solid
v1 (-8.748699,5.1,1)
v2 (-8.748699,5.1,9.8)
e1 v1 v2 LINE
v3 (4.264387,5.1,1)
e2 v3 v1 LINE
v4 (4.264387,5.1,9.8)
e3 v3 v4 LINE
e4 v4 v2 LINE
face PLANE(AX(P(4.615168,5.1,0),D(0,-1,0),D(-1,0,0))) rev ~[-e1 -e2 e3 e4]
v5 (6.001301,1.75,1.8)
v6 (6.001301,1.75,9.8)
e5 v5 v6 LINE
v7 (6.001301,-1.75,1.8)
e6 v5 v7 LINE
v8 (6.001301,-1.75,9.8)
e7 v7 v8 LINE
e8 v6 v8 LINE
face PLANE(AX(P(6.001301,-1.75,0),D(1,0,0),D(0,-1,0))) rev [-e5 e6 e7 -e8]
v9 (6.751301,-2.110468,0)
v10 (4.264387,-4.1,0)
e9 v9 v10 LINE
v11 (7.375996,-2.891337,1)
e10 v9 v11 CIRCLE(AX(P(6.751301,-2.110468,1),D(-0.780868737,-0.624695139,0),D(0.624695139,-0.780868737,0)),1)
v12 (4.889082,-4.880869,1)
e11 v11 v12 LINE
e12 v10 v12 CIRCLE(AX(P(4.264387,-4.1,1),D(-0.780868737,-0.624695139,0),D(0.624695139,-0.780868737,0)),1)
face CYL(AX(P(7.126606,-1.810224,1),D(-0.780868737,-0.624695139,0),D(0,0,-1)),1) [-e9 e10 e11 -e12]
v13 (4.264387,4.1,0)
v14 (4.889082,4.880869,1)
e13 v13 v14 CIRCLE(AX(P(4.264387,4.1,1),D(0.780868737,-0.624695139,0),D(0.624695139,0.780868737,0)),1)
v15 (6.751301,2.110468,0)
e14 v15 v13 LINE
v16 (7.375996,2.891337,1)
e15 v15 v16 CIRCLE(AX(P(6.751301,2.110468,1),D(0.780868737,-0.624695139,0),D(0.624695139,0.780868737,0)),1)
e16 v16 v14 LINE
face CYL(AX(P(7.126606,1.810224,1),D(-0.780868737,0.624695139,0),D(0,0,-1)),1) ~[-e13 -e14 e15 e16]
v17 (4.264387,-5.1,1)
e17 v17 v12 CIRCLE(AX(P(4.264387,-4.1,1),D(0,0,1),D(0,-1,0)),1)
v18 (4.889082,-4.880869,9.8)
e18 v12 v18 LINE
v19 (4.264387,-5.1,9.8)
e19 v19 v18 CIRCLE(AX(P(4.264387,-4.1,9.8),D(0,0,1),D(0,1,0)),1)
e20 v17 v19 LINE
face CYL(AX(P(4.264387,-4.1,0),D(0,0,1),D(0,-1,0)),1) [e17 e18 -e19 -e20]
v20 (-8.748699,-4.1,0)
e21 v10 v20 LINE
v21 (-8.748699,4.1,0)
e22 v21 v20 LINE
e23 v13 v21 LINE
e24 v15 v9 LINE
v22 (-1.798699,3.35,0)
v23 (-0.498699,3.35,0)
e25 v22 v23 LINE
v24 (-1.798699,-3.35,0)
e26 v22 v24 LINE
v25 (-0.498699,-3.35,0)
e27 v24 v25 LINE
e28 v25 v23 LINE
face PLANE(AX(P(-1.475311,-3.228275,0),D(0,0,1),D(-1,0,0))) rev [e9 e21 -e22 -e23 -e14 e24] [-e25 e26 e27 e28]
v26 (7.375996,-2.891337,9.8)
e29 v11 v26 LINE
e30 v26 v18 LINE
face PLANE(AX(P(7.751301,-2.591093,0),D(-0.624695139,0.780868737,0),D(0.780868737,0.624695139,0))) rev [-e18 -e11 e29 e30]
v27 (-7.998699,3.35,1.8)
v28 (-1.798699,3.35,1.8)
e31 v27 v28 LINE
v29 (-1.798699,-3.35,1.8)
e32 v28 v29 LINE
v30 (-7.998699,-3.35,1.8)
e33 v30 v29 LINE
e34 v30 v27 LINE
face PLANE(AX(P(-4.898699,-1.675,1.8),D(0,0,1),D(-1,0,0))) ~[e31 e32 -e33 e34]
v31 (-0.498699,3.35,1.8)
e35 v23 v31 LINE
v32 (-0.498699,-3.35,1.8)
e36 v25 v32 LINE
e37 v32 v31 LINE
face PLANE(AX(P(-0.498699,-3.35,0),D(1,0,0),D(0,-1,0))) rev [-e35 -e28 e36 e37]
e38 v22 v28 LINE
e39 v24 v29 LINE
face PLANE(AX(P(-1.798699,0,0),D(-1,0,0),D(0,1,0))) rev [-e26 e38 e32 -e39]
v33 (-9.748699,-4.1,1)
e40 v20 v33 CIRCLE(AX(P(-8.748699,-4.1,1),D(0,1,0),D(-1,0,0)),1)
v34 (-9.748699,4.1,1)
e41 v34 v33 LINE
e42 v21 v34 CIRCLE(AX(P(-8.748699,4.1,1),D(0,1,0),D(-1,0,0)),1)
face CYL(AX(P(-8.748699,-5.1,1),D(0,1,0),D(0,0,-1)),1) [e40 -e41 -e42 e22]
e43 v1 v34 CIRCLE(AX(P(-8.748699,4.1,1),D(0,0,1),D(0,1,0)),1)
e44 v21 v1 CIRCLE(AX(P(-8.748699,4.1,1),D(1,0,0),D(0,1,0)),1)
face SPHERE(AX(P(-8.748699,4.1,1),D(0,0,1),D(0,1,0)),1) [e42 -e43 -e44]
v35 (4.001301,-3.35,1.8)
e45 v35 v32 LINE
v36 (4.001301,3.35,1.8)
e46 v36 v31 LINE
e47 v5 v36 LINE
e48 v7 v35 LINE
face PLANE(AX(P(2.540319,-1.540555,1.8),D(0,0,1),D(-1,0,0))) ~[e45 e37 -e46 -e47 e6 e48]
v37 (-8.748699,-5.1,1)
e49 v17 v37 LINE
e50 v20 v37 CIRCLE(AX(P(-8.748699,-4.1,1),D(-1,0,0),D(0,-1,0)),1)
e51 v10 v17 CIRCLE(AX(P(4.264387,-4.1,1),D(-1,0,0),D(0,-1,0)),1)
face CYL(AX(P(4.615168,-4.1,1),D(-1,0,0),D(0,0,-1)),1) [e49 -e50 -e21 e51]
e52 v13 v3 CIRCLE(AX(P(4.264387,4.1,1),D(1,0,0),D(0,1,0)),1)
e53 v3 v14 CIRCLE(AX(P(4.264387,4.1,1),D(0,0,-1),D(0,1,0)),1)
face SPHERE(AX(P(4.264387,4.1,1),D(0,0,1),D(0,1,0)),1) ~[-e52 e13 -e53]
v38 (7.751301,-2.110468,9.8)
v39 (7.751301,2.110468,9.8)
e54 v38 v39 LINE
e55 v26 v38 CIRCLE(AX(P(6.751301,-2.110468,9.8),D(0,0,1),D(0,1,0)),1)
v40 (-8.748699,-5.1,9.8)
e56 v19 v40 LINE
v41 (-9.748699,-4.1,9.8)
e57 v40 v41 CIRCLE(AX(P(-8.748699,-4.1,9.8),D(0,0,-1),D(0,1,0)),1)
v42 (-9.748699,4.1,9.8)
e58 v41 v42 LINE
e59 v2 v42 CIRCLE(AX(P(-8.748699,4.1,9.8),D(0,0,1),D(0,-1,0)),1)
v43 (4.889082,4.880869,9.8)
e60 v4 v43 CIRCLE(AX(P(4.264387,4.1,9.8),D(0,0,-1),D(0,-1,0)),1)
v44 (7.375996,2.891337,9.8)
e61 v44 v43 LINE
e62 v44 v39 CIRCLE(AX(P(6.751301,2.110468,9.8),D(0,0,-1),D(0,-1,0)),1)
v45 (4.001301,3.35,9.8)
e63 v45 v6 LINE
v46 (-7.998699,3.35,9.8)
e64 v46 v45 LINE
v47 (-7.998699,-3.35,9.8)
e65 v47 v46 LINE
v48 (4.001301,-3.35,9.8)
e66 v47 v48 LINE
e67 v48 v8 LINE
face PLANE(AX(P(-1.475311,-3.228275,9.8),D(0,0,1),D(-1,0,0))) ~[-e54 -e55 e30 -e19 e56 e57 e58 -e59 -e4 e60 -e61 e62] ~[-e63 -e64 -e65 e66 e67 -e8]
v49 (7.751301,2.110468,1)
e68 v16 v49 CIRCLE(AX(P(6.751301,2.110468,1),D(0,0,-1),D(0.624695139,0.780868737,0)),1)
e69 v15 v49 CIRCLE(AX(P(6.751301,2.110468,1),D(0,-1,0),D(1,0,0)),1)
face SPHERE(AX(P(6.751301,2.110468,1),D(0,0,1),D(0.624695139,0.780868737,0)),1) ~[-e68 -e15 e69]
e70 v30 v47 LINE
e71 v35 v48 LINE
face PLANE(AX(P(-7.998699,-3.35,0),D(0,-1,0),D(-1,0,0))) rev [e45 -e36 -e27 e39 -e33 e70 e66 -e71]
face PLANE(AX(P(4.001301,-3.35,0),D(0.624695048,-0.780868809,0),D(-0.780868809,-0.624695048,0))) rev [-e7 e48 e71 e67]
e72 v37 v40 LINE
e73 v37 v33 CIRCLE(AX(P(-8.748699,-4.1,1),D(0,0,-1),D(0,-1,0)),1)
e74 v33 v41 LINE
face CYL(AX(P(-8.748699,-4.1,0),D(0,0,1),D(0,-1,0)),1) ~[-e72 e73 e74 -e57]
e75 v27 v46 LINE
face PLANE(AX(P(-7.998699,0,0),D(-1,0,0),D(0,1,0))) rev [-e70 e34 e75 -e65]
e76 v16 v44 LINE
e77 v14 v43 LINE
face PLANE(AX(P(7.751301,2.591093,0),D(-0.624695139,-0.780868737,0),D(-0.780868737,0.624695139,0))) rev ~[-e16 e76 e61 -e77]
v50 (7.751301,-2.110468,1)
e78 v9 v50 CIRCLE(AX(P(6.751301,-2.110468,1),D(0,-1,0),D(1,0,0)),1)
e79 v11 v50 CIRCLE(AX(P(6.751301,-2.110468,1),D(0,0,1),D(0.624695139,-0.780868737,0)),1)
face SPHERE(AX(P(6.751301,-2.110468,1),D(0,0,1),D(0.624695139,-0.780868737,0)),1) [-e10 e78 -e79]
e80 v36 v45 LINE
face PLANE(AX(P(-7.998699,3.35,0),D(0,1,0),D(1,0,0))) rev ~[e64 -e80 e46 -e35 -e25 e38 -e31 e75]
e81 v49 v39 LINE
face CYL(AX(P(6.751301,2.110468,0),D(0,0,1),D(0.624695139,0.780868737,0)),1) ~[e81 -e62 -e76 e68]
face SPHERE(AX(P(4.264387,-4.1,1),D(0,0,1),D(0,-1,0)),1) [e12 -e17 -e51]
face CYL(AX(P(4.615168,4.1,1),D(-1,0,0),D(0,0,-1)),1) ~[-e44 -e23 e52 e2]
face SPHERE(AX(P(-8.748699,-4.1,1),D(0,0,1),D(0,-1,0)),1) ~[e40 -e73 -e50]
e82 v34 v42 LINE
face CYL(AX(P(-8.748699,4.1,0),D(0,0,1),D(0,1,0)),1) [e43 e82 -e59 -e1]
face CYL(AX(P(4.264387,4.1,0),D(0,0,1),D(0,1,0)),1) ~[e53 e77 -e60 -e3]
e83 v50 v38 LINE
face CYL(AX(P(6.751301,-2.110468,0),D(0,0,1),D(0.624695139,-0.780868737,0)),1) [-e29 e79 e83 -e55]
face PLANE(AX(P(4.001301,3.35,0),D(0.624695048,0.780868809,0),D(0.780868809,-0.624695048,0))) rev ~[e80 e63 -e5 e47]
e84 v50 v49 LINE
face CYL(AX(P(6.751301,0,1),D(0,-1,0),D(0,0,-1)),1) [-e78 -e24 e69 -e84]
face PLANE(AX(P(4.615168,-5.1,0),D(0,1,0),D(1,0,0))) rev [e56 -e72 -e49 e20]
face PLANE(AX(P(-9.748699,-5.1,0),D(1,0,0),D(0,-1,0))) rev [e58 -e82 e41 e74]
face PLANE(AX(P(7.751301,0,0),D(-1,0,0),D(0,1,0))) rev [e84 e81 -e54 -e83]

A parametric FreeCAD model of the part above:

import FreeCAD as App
import Part
import Sketcher


def edges_at(feature, points):
    """Names of the edges that pass closest to the given points."""
    edges = feature.Shape.Edges
    near = lambda p: min(range(len(edges)), key=lambda i: edges[i].distToShape(Part.Vertex(*p))[0])
    return sorted({f"Edge{near(p) + 1}" for p in points})

doc = App.newDocument("Part")
body = doc.addObject("PartDesign::Body", "Body")
body.AllowCompound = True

sketch1 = body.newObject("Sketcher::SketchObject", "Sketch")
sketch1.AttachmentSupport = (doc.getObject("XY_Plane"), [""])
sketch1.MapMode = "FlatFace"
sketch1.addGeometry([
    Part.LineSegment(App.Vector(-8, 3.4, 0), App.Vector(-8, 0, 0)),
    Part.LineSegment(App.Vector(-8, 0, 0), App.Vector(-1.8, 0, 0)),
    Part.LineSegment(App.Vector(-1.8, 0, 0), App.Vector(-1.8, 3.4, 0)),
    Part.LineSegment(App.Vector(-1.8, 3.4, 0), App.Vector(-8, 3.4, 0)),
    Part.LineSegment(App.Vector(-0.5, 3.4, 0), App.Vector(-0.5, 0, 0)),
    Part.LineSegment(App.Vector(-0.5, 0, 0), App.Vector(6, 0, 0)),
    Part.LineSegment(App.Vector(6, 0, 0), App.Vector(6, 1.8, 0)),
    Part.LineSegment(App.Vector(6, 1.8, 0), App.Vector(4, 3.4, 0)),
    Part.LineSegment(App.Vector(4, 3.4, 0), App.Vector(-0.5, 3.4, 0)),
], False)
sketch1.addConstraint([
    Sketcher.Constraint("Coincident", 0, 2, 1, 1),
    Sketcher.Constraint("Coincident", 1, 2, 2, 1),
    Sketcher.Constraint("Coincident", 2, 2, 3, 1),
    Sketcher.Constraint("Coincident", 3, 2, 0, 1),
    Sketcher.Constraint("Coincident", 4, 2, 5, 1),
    Sketcher.Constraint("Coincident", 5, 2, 6, 1),
    Sketcher.Constraint("Coincident", 6, 2, 7, 1),
    Sketcher.Constraint("Coincident", 7, 2, 8, 1),
    Sketcher.Constraint("Coincident", 8, 2, 4, 1),
    Sketcher.Constraint("Vertical", 0),
    Sketcher.Constraint("Horizontal", 1),
    Sketcher.Constraint("Vertical", 2),
    Sketcher.Constraint("Horizontal", 3),
    Sketcher.Constraint("Vertical", 4),
    Sketcher.Constraint("Horizontal", 5),
    Sketcher.Constraint("Vertical", 6),
    Sketcher.Constraint("Horizontal", 8),
    Sketcher.Constraint("PointOnObject", 0, 2, -1),
    Sketcher.Constraint("PointOnObject", 4, 2, -1),
    Sketcher.Constraint("Horizontal", 3, 2, 7, 2),
    Sketcher.Constraint("DistanceX", 1, 1, 1, 2, 6.2),
    Sketcher.Constraint("DistanceX", 5, 1, 5, 2, 6.5),
    Sketcher.Constraint("DistanceX", 8, 2, 8, 1, 4.5),
    Sketcher.Constraint("DistanceX", 0, 2, 5, 2, 14.0),
    Sketcher.Constraint("DistanceY", 0, 2, 0, 1, 3.35),
    Sketcher.Constraint("DistanceY", 6, 1, 6, 2, 1.75),
    Sketcher.Constraint("DistanceX", 0, 2, -1, 1, 7.998699),
])
pad1 = body.newObject("PartDesign::Pad", "Pad")
pad1.Profile = sketch1
pad1.Length = 1.8

sketch2 = body.newObject("Sketcher::SketchObject", "Sketch001")
sketch2.AttachmentSupport = (doc.getObject("XY_Plane"), [""])
sketch2.MapMode = "FlatFace"
sketch2.addGeometry([
    Part.LineSegment(App.Vector(-9.7, 0, 0), App.Vector(-8, 0, 0)),
    Part.LineSegment(App.Vector(-8, 0, 0), App.Vector(-8, 3.4, 0)),
    Part.LineSegment(App.Vector(-8, 3.4, 0), App.Vector(4, 3.4, 0)),
    Part.LineSegment(App.Vector(4, 3.4, 0), App.Vector(6, 1.8, 0)),
    Part.LineSegment(App.Vector(6, 1.8, 0), App.Vector(6, 0, 0)),
    Part.LineSegment(App.Vector(6, 0, 0), App.Vector(7.8, 0, 0)),
    Part.LineSegment(App.Vector(7.8, 0, 0), App.Vector(7.8, 2.6, 0)),
    Part.LineSegment(App.Vector(7.8, 2.6, 0), App.Vector(4.6, 5.1, 0)),
    Part.LineSegment(App.Vector(4.6, 5.1, 0), App.Vector(-9.7, 5.1, 0)),
    Part.LineSegment(App.Vector(-9.7, 5.1, 0), App.Vector(-9.7, 0, 0)),
], False)
sketch2.addConstraint([
    Sketcher.Constraint("Coincident", 0, 2, 1, 1),
    Sketcher.Constraint("Coincident", 1, 2, 2, 1),
    Sketcher.Constraint("Coincident", 2, 2, 3, 1),
    Sketcher.Constraint("Coincident", 3, 2, 4, 1),
    Sketcher.Constraint("Coincident", 4, 2, 5, 1),
    Sketcher.Constraint("Coincident", 5, 2, 6, 1),
    Sketcher.Constraint("Coincident", 6, 2, 7, 1),
    Sketcher.Constraint("Coincident", 7, 2, 8, 1),
    Sketcher.Constraint("Coincident", 8, 2, 9, 1),
    Sketcher.Constraint("Coincident", 9, 2, 0, 1),
    Sketcher.Constraint("Horizontal", 0),
    Sketcher.Constraint("Vertical", 1),
    Sketcher.Constraint("Horizontal", 2),
    Sketcher.Constraint("Vertical", 4),
    Sketcher.Constraint("Horizontal", 5),
    Sketcher.Constraint("Vertical", 6),
    Sketcher.Constraint("Horizontal", 8),
    Sketcher.Constraint("Vertical", 9),
    Sketcher.Constraint("PointOnObject", 0, 2, -1),
    Sketcher.Constraint("PointOnObject", 4, 2, -1),
    Sketcher.Constraint("Parallel", 3, 7),
    Sketcher.Constraint("Equal", 0, 5),
    Sketcher.Constraint("Equal", 5, 4),
    Sketcher.Constraint("DistanceX", 2, 1, 2, 2, 12.0),
    Sketcher.Constraint("DistanceY", 9, 2, 9, 1, 5.1),
    Sketcher.Constraint("DistanceX", 2, 2, 3, 2, 2.0),
    Sketcher.Constraint("DistanceX", 0, 1, 0, 2, 1.75),
    Sketcher.Constraint("DistanceY", 1, 1, 1, 2, 3.35),
    Sketcher.Constraint("DistanceX", 0, 2, -1, 1, 7.998699),
    Sketcher.Constraint("Distance", 7, 4.01621),
])
pad2 = body.newObject("PartDesign::Pad", "Pad001")
pad2.Profile = sketch2
pad2.Length = 9.8
doc.recompute()

fillet = body.newObject("PartDesign::Fillet", "Fillet")
fillet.Base = (pad2, edges_at(pad2, [
    (-9.749, 5.1, 4.9),
    (4.615, 5.1, 4.9),
    (7.751, 2.591, 4.9),
    (-2.567, 5.1, 0),
    (6.183, 3.846, 0),
    (7.751, 1.296, 0),
    (-9.749, 2.55, 0),
]))
fillet.Radius = 1
body2 = doc.addObject("PartDesign::Body", "Body001")
doc.recompute()

body2.BaseFeature = body
doc.recompute()

mirroring = doc.addObject("Part::Mirroring", "Mirroring")
mirroring.Source = body
mirroring.Base = App.Vector(5.186004, 0, 3.300707)
mirroring.Normal = App.Vector(0, -1, 0)
body3 = doc.addObject("PartDesign::Body", "Body002")
body3.BaseFeature = mirroring
boolean = body2.newObject("PartDesign::Boolean", "Boolean")
boolean.Type = "Fuse"
boolean.addObjects([body3])
doc.recompute()
mirroring.Visibility = False

doc.recompute()
